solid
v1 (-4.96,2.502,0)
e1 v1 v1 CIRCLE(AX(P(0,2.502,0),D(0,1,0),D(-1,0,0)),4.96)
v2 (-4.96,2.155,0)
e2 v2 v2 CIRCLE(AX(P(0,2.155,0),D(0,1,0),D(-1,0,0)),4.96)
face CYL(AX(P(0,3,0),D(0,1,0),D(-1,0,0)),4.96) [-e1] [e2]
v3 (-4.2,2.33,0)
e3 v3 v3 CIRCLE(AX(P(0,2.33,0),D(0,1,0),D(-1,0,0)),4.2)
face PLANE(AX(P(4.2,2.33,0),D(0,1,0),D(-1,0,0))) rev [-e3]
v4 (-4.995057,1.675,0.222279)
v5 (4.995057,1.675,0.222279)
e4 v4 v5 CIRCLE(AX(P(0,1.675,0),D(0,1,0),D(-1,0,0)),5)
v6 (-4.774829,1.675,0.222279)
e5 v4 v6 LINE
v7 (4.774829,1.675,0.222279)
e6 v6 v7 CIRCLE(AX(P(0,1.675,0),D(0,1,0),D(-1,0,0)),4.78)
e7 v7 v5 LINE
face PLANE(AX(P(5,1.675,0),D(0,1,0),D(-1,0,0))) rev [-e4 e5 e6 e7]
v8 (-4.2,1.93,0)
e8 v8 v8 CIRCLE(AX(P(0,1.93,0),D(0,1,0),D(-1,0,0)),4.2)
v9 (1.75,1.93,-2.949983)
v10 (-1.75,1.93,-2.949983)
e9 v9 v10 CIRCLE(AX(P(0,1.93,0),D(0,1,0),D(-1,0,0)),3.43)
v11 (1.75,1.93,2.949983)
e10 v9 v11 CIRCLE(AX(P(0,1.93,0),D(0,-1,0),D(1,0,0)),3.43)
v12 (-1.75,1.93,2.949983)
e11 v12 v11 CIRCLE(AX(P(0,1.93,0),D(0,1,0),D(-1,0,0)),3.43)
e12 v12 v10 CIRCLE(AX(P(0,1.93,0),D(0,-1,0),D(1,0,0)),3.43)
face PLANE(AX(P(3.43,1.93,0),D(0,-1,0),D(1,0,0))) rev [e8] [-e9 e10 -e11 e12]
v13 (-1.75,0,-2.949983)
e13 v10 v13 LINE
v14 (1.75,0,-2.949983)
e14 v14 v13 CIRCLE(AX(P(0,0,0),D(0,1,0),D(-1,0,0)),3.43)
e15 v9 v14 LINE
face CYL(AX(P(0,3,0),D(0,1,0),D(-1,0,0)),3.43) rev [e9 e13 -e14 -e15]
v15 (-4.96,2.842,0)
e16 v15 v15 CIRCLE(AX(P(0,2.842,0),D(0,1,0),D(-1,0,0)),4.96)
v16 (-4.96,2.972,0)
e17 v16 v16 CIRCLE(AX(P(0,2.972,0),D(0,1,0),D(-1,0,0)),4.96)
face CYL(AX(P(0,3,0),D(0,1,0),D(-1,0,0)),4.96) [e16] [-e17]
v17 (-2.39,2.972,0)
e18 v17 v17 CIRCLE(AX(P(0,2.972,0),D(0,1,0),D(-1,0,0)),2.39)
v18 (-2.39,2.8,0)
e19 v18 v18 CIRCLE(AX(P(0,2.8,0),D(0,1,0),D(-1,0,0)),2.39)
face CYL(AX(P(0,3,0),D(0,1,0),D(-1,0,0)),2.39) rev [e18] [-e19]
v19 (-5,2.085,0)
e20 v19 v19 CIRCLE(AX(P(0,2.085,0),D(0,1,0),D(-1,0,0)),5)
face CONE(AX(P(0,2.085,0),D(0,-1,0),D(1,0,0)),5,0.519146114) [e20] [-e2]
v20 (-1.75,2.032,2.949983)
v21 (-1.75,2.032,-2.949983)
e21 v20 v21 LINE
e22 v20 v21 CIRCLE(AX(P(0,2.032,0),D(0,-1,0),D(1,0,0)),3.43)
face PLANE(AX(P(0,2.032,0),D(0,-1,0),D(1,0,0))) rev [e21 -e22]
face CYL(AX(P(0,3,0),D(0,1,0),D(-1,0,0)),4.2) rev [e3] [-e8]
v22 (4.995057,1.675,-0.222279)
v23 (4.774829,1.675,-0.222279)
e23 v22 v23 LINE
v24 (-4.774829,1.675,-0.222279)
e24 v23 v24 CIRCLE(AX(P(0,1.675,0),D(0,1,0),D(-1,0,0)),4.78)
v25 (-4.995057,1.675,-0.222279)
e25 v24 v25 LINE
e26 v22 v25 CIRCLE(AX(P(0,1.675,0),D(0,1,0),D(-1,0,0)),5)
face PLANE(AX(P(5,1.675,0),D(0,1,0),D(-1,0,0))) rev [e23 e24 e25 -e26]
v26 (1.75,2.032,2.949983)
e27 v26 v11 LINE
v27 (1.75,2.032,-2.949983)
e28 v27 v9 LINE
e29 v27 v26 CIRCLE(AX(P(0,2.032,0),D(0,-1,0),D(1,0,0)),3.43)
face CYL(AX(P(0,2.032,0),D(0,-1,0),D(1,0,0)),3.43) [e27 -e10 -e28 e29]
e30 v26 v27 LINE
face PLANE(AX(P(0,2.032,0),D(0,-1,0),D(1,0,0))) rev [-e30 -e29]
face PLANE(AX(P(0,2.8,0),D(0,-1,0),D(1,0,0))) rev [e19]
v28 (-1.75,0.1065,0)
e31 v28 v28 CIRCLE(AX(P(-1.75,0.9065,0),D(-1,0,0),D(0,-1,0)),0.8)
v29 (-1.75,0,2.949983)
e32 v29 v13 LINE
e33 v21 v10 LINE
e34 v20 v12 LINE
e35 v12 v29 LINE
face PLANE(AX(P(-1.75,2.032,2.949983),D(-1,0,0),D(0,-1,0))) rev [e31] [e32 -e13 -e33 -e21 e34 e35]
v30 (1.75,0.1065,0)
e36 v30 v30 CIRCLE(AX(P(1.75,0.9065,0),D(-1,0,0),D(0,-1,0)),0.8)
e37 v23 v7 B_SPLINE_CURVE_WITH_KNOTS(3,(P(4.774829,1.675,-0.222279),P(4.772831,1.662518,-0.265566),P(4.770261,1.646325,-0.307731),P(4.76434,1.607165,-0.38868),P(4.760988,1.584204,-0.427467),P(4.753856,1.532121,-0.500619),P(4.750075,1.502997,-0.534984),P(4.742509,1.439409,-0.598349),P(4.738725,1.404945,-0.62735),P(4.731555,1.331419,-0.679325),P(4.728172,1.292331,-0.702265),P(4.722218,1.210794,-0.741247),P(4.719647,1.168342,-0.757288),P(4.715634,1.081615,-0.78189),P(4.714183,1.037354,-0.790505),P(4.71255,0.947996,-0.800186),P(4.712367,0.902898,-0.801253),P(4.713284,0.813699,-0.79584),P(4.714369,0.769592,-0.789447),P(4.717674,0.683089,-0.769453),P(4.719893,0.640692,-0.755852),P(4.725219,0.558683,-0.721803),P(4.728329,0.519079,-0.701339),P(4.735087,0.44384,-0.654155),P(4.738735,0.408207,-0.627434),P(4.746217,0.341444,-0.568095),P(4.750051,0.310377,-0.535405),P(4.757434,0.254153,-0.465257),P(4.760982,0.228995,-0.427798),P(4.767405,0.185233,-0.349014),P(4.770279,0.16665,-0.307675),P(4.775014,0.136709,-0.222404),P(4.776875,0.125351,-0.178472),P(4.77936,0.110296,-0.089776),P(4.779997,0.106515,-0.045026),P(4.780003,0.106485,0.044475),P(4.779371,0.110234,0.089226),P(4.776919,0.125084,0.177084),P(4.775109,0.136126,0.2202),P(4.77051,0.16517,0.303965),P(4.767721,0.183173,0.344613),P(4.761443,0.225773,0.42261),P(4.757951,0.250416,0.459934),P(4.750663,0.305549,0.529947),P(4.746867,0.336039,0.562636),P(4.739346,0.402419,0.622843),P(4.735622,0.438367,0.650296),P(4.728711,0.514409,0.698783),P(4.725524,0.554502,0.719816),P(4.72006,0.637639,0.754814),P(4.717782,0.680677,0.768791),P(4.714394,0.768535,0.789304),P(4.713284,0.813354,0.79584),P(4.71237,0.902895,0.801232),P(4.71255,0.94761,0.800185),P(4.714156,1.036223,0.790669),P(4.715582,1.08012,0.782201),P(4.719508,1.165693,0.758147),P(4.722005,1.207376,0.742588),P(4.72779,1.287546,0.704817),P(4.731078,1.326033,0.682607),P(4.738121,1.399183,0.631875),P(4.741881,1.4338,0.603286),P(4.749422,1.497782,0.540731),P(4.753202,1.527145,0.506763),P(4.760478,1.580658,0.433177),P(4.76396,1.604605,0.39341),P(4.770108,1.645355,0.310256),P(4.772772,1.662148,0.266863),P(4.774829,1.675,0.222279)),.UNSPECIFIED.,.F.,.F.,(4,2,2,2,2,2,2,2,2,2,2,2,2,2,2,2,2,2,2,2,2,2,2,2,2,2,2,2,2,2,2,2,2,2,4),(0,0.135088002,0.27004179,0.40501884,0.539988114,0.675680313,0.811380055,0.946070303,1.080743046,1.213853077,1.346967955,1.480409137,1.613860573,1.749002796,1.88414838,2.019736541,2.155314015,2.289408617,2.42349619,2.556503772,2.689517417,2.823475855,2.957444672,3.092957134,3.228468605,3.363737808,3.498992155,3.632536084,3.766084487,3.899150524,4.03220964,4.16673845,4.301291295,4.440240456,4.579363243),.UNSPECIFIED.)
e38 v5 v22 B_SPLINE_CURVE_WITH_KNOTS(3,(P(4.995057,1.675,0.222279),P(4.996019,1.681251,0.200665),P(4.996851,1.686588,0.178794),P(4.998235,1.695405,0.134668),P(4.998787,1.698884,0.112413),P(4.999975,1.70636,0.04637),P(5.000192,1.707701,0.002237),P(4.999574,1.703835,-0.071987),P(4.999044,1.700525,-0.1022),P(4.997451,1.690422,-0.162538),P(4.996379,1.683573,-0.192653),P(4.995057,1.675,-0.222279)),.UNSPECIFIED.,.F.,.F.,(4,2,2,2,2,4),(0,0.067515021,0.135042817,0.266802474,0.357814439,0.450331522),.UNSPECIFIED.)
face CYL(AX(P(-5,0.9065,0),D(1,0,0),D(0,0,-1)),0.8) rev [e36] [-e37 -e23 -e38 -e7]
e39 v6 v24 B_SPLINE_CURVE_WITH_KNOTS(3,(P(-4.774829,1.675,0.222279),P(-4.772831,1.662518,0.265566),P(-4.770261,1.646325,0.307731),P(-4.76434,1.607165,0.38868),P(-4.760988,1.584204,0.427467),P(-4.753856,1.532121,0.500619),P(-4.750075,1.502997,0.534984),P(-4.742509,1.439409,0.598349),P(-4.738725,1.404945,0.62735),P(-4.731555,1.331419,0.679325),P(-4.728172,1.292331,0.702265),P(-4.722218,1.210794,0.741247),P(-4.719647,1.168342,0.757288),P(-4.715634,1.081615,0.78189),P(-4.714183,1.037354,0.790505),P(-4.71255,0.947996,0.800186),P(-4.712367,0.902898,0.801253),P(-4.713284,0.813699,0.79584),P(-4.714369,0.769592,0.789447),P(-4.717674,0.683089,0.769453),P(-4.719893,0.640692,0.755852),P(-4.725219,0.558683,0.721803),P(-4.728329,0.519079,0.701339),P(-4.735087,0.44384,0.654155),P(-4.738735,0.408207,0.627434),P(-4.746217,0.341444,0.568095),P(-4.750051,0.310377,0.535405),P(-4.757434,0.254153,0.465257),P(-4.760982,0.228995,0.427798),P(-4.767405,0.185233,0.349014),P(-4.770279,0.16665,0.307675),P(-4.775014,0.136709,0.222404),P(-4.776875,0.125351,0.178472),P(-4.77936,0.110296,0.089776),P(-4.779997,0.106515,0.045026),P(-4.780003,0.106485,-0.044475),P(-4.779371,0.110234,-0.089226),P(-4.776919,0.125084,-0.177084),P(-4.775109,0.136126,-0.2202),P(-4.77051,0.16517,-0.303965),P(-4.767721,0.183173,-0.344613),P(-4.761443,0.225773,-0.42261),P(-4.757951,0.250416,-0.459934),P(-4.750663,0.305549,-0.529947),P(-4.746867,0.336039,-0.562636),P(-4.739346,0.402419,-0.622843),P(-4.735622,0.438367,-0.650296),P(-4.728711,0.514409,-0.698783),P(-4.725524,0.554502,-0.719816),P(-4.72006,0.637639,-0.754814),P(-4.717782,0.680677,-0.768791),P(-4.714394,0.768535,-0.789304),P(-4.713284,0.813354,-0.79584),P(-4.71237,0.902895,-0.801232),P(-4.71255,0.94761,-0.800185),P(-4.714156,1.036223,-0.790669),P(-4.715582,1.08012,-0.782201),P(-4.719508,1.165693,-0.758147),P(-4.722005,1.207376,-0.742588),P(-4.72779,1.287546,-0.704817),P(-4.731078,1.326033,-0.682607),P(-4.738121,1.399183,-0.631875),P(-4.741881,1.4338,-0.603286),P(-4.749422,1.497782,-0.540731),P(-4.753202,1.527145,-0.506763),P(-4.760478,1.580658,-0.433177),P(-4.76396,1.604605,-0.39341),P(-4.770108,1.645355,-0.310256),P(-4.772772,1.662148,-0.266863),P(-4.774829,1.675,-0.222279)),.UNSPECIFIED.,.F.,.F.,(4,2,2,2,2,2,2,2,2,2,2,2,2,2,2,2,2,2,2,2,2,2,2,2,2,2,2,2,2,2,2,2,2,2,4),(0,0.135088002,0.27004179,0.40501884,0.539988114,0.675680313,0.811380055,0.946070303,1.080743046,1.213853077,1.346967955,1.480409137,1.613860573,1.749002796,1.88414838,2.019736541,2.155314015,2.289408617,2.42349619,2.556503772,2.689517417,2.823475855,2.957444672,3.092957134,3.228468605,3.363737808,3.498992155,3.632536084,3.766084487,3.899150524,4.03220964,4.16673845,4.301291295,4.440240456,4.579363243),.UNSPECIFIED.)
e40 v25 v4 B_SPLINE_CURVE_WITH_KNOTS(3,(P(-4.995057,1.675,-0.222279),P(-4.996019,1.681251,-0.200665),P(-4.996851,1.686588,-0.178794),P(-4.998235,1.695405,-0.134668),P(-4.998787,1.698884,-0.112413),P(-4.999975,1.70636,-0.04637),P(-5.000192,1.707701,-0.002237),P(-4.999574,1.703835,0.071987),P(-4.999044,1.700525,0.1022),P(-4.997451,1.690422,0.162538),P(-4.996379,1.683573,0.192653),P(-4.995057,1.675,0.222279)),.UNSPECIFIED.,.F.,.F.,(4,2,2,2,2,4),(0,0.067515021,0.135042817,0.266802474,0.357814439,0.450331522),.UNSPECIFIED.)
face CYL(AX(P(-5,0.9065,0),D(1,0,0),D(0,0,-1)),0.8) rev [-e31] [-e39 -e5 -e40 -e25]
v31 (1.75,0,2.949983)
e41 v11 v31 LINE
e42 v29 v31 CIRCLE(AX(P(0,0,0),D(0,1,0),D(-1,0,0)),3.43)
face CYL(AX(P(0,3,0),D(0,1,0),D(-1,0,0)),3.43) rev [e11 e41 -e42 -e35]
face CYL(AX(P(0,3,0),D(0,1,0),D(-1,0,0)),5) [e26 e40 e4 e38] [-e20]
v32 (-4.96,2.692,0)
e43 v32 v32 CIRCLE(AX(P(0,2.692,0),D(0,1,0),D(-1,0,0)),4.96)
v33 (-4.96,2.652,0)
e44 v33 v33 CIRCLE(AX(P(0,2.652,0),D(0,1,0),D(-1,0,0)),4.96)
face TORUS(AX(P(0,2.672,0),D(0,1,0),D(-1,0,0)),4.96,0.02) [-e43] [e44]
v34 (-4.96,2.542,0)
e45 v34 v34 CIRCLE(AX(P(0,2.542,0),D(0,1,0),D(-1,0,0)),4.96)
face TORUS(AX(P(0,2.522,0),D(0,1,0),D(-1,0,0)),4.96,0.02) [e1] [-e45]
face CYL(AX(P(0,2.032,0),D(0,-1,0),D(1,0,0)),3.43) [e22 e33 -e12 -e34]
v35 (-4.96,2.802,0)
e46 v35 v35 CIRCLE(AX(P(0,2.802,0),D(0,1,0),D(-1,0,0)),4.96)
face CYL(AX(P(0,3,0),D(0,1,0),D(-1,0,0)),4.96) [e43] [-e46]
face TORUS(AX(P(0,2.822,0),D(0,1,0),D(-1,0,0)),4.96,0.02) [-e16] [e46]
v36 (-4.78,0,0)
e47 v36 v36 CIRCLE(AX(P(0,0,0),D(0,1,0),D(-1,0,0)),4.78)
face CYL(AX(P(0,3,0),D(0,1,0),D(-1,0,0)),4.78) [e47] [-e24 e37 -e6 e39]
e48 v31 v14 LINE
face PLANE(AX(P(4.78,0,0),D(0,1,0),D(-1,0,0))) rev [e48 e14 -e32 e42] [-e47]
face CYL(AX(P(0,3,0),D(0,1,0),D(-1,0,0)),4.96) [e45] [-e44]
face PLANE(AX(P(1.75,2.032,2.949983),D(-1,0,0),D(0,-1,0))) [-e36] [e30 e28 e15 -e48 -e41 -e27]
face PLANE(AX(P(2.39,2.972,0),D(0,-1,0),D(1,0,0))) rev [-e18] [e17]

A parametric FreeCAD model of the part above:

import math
import FreeCAD as App
import Part
import Sketcher

V = App.Vector
Q = App.Units.Quantity

doc = App.newDocument("Part")
params = doc.addObject("Spreadsheet::Sheet", "Params")
for row, (alias, value) in enumerate([
    ("sketch1_radius", "0.02 mm"),
    ("sketch1_width", "4.2 mm"),
    ("sketch1_height", "0.4 mm"),
    ("sketch1_width2", "1.35 mm"),
    ("sketch1_width3", "0.22 mm"),
    ("revolution_angle", "360 deg"),
    ("sketch2_radius", "3.43 mm"),
    ("pad1_length", "2.032 mm"),
    ("sketch3_diameter", "1.6 mm"),
], start=1):
    params.set(f"A{row}", alias)
    params.set(f"B{row}", "=" + value)
    params.setAlias(f"B{row}", alias)

body = doc.addObject("PartDesign::Body", "Body")

sketch1 = body.newObject("Sketcher::SketchObject", "Sketch")
sketch1.AttachmentSupport = (doc.getObject("XY_Plane"), [""])
sketch1.MapMode = "FlatFace"
sketch1.addGeometry(Part.LineSegment(V(3.43, 0, 0), V(4.78, 0, 0)), False)
sketch1.addGeometry(Part.LineSegment(V(4.78, 0, 0), V(4.78, 1.675, 0)), False)
sketch1.addGeometry(Part.LineSegment(V(4.78, 1.675, 0), V(5, 1.675, 0)), False)
sketch1.addGeometry(Part.LineSegment(V(5, 1.675, 0), V(5, 2.085, 0)), False)
sketch1.addGeometry(Part.LineSegment(V(5, 2.085, 0), V(4.96, 2.155, 0)), False)
sketch1.addGeometry(Part.LineSegment(V(4.96, 2.155, 0), V(4.96, 2.502, 0)), False)
sketch1.addGeometry(Part.ArcOfCircle(Part.Circle(V(4.96, 2.522, 0), V(0, 0, 1), 0.02), math.radians(-90), math.radians(90)), False)
sketch1.addGeometry(Part.LineSegment(V(4.96, 2.542, 0), V(4.96, 2.652, 0)), False)
sketch1.addGeometry(Part.ArcOfCircle(Part.Circle(V(4.96, 2.672, 0), V(0, 0, 1), 0.02), math.radians(-90), math.radians(90)), False)
sketch1.addGeometry(Part.LineSegment(V(4.96, 2.692, 0), V(4.96, 2.802, 0)), False)
sketch1.addGeometry(Part.ArcOfCircle(Part.Circle(V(4.96, 2.822, 0), V(0, 0, 1), 0.02), math.radians(-90), math.radians(90)), False)
sketch1.addGeometry(Part.LineSegment(V(4.96, 2.842, 0), V(4.96, 2.972, 0)), False)
sketch1.addGeometry(Part.LineSegment(V(4.96, 2.972, 0), V(2.39, 2.972, 0)), False)
sketch1.addGeometry(Part.LineSegment(V(2.39, 2.972, 0), V(2.39, 2.8, 0)), False)
sketch1.addGeometry(Part.LineSegment(V(2.39, 2.8, 0), V(0, 2.8, 0)), False)
sketch1.addGeometry(Part.LineSegment(V(0, 2.8, 0), V(0, 2.33, 0)), False)
sketch1.addGeometry(Part.LineSegment(V(0, 2.33, 0), V(4.2, 2.33, 0)), False)
sketch1.addGeometry(Part.LineSegment(V(4.2, 2.33, 0), V(4.2, 1.93, 0)), False)
sketch1.addGeometry(Part.LineSegment(V(4.2, 1.93, 0), V(3.43, 1.93, 0)), False)
sketch1.addGeometry(Part.LineSegment(V(3.43, 1.93, 0), V(3.43, 0, 0)), False)
sketch1.addConstraint(Sketcher.Constraint("Coincident", 0, 2, 1, 1))
sketch1.addConstraint(Sketcher.Constraint("Coincident", 1, 2, 2, 1))
sketch1.addConstraint(Sketcher.Constraint("Coincident", 2, 2, 3, 1))
sketch1.addConstraint(Sketcher.Constraint("Coincident", 3, 2, 4, 1))
sketch1.addConstraint(Sketcher.Constraint("Coincident", 4, 2, 5, 1))
sketch1.addConstraint(Sketcher.Constraint("Coincident", 5, 2, 6, 1))
sketch1.addConstraint(Sketcher.Constraint("Coincident", 6, 2, 7, 1))
sketch1.addConstraint(Sketcher.Constraint("Coincident", 7, 2, 8, 1))
sketch1.addConstraint(Sketcher.Constraint("Coincident", 8, 2, 9, 1))
sketch1.addConstraint(Sketcher.Constraint("Coincident", 9, 2, 10, 1))
sketch1.addConstraint(Sketcher.Constraint("Coincident", 10, 2, 11, 1))
sketch1.addConstraint(Sketcher.Constraint("Coincident", 11, 2, 12, 1))
sketch1.addConstraint(Sketcher.Constraint("Coincident", 12, 2, 13, 1))
sketch1.addConstraint(Sketcher.Constraint("Coincident", 13, 2, 14, 1))
sketch1.addConstraint(Sketcher.Constraint("Coincident", 14, 2, 15, 1))
sketch1.addConstraint(Sketcher.Constraint("Coincident", 15, 2, 16, 1))
sketch1.addConstraint(Sketcher.Constraint("Coincident", 16, 2, 17, 1))
sketch1.addConstraint(Sketcher.Constraint("Coincident", 17, 2, 18, 1))
sketch1.addConstraint(Sketcher.Constraint("Coincident", 18, 2, 19, 1))
sketch1.addConstraint(Sketcher.Constraint("Coincident", 19, 2, 0, 1))
sketch1.addConstraint(Sketcher.Constraint("Horizontal", 0))
sketch1.addConstraint(Sketcher.Constraint("Vertical", 1))
sketch1.addConstraint(Sketcher.Constraint("Horizontal", 2))
sketch1.addConstraint(Sketcher.Constraint("Vertical", 3))
sketch1.addConstraint(Sketcher.Constraint("Vertical", 5))
sketch1.addConstraint(Sketcher.Constraint("Vertical", 7))
sketch1.addConstraint(Sketcher.Constraint("Vertical", 9))
sketch1.addConstraint(Sketcher.Constraint("Vertical", 11))
sketch1.addConstraint(Sketcher.Constraint("Horizontal", 12))
sketch1.addConstraint(Sketcher.Constraint("Vertical", 13))
sketch1.addConstraint(Sketcher.Constraint("Horizontal", 14))
sketch1.addConstraint(Sketcher.Constraint("Vertical", 15))
sketch1.addConstraint(Sketcher.Constraint("Horizontal", 16))
sketch1.addConstraint(Sketcher.Constraint("Vertical", 17))
sketch1.addConstraint(Sketcher.Constraint("Horizontal", 18))
sketch1.addConstraint(Sketcher.Constraint("Vertical", 19))
sketch1.addConstraint(Sketcher.Constraint("Equal", 6, 8))
sketch1.addConstraint(Sketcher.Constraint("Equal", 8, 10))
sketch1.addConstraint(Sketcher.Constraint("PointOnObject", 0, 2, -1))
sketch1.addConstraint(Sketcher.Constraint("PointOnObject", 14, 2, -2))
sketch1.addConstraint(Sketcher.Constraint("Vertical", 6, 3, 8, 3))
sketch1.addConstraint(Sketcher.Constraint("Vertical", 8, 3, 10, 3))
sketch1.addConstraint(Sketcher.Constraint("Vertical", 10, 3, 4, 2))
sketch1.addConstraint(Sketcher.Constraint("Vertical", 5, 2, 6, 2))
sketch1.addConstraint(Sketcher.Constraint("Vertical", 7, 2, 8, 2))
sketch1.addConstraint(Sketcher.Constraint("Vertical", 9, 2, 10, 2))
sketch1.addConstraint(Sketcher.Constraint("Equal", 7, 9))
sketch1.addConstraint(Sketcher.Constraint("Radius", 6, Q("0.02 mm")))
sketch1.addConstraint(Sketcher.Constraint("DistanceX", 16, 1, 16, 2, Q("4.2 mm")))
sketch1.addConstraint(Sketcher.Constraint("DistanceY", 17, 2, 17, 1, Q("0.4 mm")))
sketch1.addConstraint(Sketcher.Constraint("DistanceX", -1, 1, 2, 2, Q("5 mm")))
sketch1.addConstraint(Sketcher.Constraint("DistanceX", 0, 1, 0, 2, Q("1.35 mm")))
sketch1.addConstraint(Sketcher.Constraint("DistanceX", 2, 1, 2, 2, Q("0.22 mm")))
sketch1.addConstraint(Sketcher.Constraint("DistanceX", 12, 2, 12, 1, Q("2.57 mm")))
sketch1.addConstraint(Sketcher.Constraint("DistanceX", 14, 2, 14, 1, Q("2.39 mm")))
sketch1.addConstraint(Sketcher.Constraint("DistanceY", 3, 1, 3, 2, Q("0.41 mm")))
sketch1.addConstraint(Sketcher.Constraint("DistanceY", 7, 1, 7, 2, Q("0.11 mm")))
sketch1.addConstraint(Sketcher.Constraint("DistanceY", 11, 1, 11, 2, Q("0.13 mm")))
sketch1.addConstraint(Sketcher.Constraint("DistanceY", 15, 2, 15, 1, Q("0.47 mm")))
sketch1.addConstraint(Sketcher.Constraint("DistanceY", 19, 2, 19, 1, Q("1.93 mm")))
sketch1.addConstraint(Sketcher.Constraint("DistanceY", 1, 1, 1, 2, Q("1.675 mm")))
sketch1.addConstraint(Sketcher.Constraint("DistanceY", 5, 1, 5, 2, Q("0.347 mm")))
sketch1.addConstraint(Sketcher.Constraint("DistanceY", 13, 2, 13, 1, Q("0.172 mm")))
sketch1.setExpression("Constraints[47]", "Params.sketch1_radius")
sketch1.setExpression("Constraints[48]", "Params.sketch1_width")
sketch1.setExpression("Constraints[49]", "Params.sketch1_height")
sketch1.setExpression("Constraints[51]", "Params.sketch1_width2")
sketch1.setExpression("Constraints[52]", "Params.sketch1_width3")
revolution = body.newObject("PartDesign::Revolution", "Revolution")
revolution.Profile = sketch1
revolution.ReferenceAxis = (sketch1, ["V_Axis"])
revolution.setExpression("Angle", "Params.revolution_angle")

sketch2 = body.newObject("Sketcher::SketchObject", "Sketch001")
sketch2.AttachmentSupport = (doc.getObject("XZ_Plane"), [""])
sketch2.MapMode = "FlatFace"
sketch2.addGeometry(Part.LineSegment(V(-1.8, -2.9, 0), V(-1.8, 2.9, 0)), False)
sketch2.addGeometry(Part.ArcOfCircle(Part.Circle(V(0, 0, 0), V(0, 0, 1), 3.4), math.radians(121), math.radians(239)), False)
sketch2.addGeometry(Part.LineSegment(V(1.8, 2.9, 0), V(1.8, -2.9, 0)), False)
sketch2.addGeometry(Part.ArcOfCircle(Part.Circle(V(0, 0, 0), V(0, 0, 1), 3.4), math.radians(-59), math.radians(59)), False)
sketch2.addConstraint(Sketcher.Constraint("Coincident", 0, 1, 1, 2))
sketch2.addConstraint(Sketcher.Constraint("Coincident", 1, 1, 0, 2))
sketch2.addConstraint(Sketcher.Constraint("Coincident", 2, 1, 3, 2))
sketch2.addConstraint(Sketcher.Constraint("Coincident", 3, 1, 2, 2))
sketch2.addConstraint(Sketcher.Constraint("Vertical", 0))
sketch2.addConstraint(Sketcher.Constraint("Vertical", 2))
sketch2.addConstraint(Sketcher.Constraint("Coincident", 1, 3, -1, 1))
sketch2.addConstraint(Sketcher.Constraint("Coincident", 3, 3, -1, 1))
sketch2.addConstraint(Sketcher.Constraint("Equal", 1, 3))
sketch2.addConstraint(Sketcher.Constraint("Horizontal", 1, 1, 2, 1))
sketch2.addConstraint(Sketcher.Constraint("Radius", 1, Q("3.43 mm")))
sketch2.addConstraint(Sketcher.Constraint("DistanceX", 1, 1, 2, 1, Q("3.5 mm")))
sketch2.setExpression("Constraints[10]", "Params.sketch2_radius")
pad1 = body.newObject("PartDesign::Pad", "Pad")
pad1.Profile = sketch2
pad1.setExpression("Length", "Params.pad1_length")
pad1.Reversed = True

sketch3 = body.newObject("Sketcher::SketchObject", "Sketch002")
sketch3.AttachmentSupport = (doc.getObject("YZ_Plane"), [""])
sketch3.MapMode = "FlatFace"
sketch3.addGeometry(Part.Circle(V(0.9, 0, 0), V(0, 0, 1), 0.8), False)
sketch3.addConstraint(Sketcher.Constraint("PointOnObject", 0, 3, -1))
sketch3.addConstraint(Sketcher.Constraint("Diameter", 0, Q("1.6 mm")))
sketch3.addConstraint(Sketcher.Constraint("DistanceX", -1, 1, 0, 3, Q("0.9065 mm")))
sketch3.setExpression("Constraints[1]", "Params.sketch3_diameter")
pocket1 = body.newObject("PartDesign::Pocket", "Pocket")
pocket1.Profile = sketch3
pocket1.Type = "ThroughAll"
pocket1.Midplane = True

doc.recompute()
